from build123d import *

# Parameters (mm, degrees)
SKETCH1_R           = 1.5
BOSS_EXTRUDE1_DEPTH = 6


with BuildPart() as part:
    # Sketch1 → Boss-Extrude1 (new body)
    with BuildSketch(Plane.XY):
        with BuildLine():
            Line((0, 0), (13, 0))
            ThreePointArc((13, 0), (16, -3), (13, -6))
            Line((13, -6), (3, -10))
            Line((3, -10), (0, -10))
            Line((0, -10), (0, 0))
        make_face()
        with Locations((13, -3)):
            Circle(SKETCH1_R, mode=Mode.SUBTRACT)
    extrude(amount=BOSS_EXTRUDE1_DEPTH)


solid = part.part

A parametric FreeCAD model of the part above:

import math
import FreeCAD as App
import Part
import Sketcher
Q = App.Units.Quantity

doc = App.newDocument("Part")
body = doc.addObject("PartDesign::Body", "Body")

# Sketch on XY plane
sketch1 = body.newObject("Sketcher::SketchObject", "Sketch")
sketch1.AttachmentSupport = (doc.getObject("XY_Plane"), [""])
sketch1.MapMode = "FlatFace"
sketch1.addGeometry([
    Part.LineSegment(App.Vector(13, 0, 0), App.Vector(0, 0, 0)),  # 0
    Part.LineSegment(App.Vector(0, 0, 0), App.Vector(0, -10, 0)),  # 1
    Part.LineSegment(App.Vector(0, -10, 0), App.Vector(3, -10, 0)),  # 2
    Part.LineSegment(App.Vector(3, -10, 0), App.Vector(13, -6, 0)),  # 3
    Part.ArcOfCircle(Part.Circle(App.Vector(13, -3, 0), App.Vector(0, 0, 1), 3), math.radians(-90), math.radians(90)),  # 4
    Part.Circle(App.Vector(13, -3, 0), App.Vector(0, 0, 1), 1.5),  # 5
], False)
sketch1.addConstraint([
    Sketcher.Constraint("Coincident", 0, 2, 1, 1),
    Sketcher.Constraint("Coincident", 1, 2, 2, 1),
    Sketcher.Constraint("Coincident", 2, 2, 3, 1),
    Sketcher.Constraint("Coincident", 3, 2, 4, 1),
    Sketcher.Constraint("Tangent", 4, 2, 0, 1),
    Sketcher.Constraint("Horizontal", 0),
    Sketcher.Constraint("Vertical", 1),
    Sketcher.Constraint("Horizontal", 2),
    Sketcher.Constraint("Coincident", 0, 2, -1, 1),
    Sketcher.Constraint("Coincident", 5, 3, 4, 3),
    Sketcher.Constraint("Vertical", 5, 3, 3, 2),
    Sketcher.Constraint("Diameter", 5, Q("3 mm")),
    Sketcher.Constraint("Radius", 4, Q("3 mm")),
    Sketcher.Constraint("DistanceX", 0, 2, 0, 1, Q("13 mm")),
    Sketcher.Constraint("DistanceX", 2, 1, 2, 2, Q("3 mm")),
    Sketcher.Constraint("DistanceY", 1, 2, 1, 1, Q("10 mm")),
])
pad1 = body.newObject("PartDesign::Pad", "Pad")
pad1.Profile = sketch1
pad1.Length = 6

doc.recompute()
